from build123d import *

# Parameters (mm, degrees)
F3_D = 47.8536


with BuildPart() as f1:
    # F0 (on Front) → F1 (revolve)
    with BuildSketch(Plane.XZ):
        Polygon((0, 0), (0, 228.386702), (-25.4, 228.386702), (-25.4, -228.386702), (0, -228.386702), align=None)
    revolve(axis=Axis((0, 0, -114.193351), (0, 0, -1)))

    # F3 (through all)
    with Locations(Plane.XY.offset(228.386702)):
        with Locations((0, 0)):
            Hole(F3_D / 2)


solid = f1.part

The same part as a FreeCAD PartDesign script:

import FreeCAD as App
import Part
import Sketcher

V = App.Vector
Q = App.Units.Quantity


def add_polygon(sketch, points):
    """Adds a closed chain of lines whose ends are joined by coincident constraints."""
    first, n = sketch.GeometryCount, len(points)
    for a, b in zip(points, points[1:] + points[:1]):
        sketch.addGeometry(Part.LineSegment(App.Vector(*a, 0), App.Vector(*b, 0)), False)
    for i in range(n):
        sketch.addConstraint(Sketcher.Constraint("Coincident", first + i, 2, first + (i + 1) % n, 1))

doc = App.newDocument("Part")
body = doc.addObject("PartDesign::Body", "Body")

# Sketch on XZ plane
sketch1 = body.newObject("Sketcher::SketchObject", "Sketch")
sketch1.AttachmentSupport = (doc.getObject("XZ_Plane"), [""])
sketch1.MapMode = "FlatFace"
add_polygon(sketch1, [(0, 228), (-25, 228), (-25, -228), (0, -228)])  # lines 0-3
sketch1.addConstraint(Sketcher.Constraint("Horizontal", 0))
sketch1.addConstraint(Sketcher.Constraint("Vertical", 1))
sketch1.addConstraint(Sketcher.Constraint("Horizontal", 2))
sketch1.addConstraint(Sketcher.Constraint("Vertical", 3))
sketch1.addConstraint(Sketcher.Constraint("Symmetric", 2, 2, 3, 2, -1, 1))
sketch1.addConstraint(Sketcher.Constraint("DistanceX", 0, 2, 0, 1, Q("1 in")))
sketch1.addConstraint(Sketcher.Constraint("DistanceY", 1, 2, 1, 1, Q("456.773404 mm")))
revolution = body.newObject("PartDesign::Revolution", "Revolution")
revolution.Profile = sketch1
revolution.ReferenceAxis = (sketch1, ["V_Axis"])
revolution.Angle = 360

# Sketch on XY plane
sketch2 = body.newObject("Sketcher::SketchObject", "Sketch001")
sketch2.AttachmentSupport = (doc.getObject("XY_Plane"), [""])
sketch2.MapMode = "FlatFace"
sketch2.AttachmentOffset = App.Placement(V(0, 0, 228.386702), App.Rotation())
sketch2.addGeometry(Part.Circle(V(0, 0, 0), V(0, 0, 1), 24), False)
sketch2.addConstraint(Sketcher.Constraint("Coincident", 0, 3, -1, 1))
sketch2.addConstraint(Sketcher.Constraint("Diameter", 0, Q("1.884 in")))
doc.recompute()
hole = body.newObject("PartDesign::Hole", "Hole")
hole.Profile = sketch2
hole.ThreadType = "None"
hole.Diameter = Q("1.884 in")
hole.DepthType = "ThroughAll"

doc.recompute()
